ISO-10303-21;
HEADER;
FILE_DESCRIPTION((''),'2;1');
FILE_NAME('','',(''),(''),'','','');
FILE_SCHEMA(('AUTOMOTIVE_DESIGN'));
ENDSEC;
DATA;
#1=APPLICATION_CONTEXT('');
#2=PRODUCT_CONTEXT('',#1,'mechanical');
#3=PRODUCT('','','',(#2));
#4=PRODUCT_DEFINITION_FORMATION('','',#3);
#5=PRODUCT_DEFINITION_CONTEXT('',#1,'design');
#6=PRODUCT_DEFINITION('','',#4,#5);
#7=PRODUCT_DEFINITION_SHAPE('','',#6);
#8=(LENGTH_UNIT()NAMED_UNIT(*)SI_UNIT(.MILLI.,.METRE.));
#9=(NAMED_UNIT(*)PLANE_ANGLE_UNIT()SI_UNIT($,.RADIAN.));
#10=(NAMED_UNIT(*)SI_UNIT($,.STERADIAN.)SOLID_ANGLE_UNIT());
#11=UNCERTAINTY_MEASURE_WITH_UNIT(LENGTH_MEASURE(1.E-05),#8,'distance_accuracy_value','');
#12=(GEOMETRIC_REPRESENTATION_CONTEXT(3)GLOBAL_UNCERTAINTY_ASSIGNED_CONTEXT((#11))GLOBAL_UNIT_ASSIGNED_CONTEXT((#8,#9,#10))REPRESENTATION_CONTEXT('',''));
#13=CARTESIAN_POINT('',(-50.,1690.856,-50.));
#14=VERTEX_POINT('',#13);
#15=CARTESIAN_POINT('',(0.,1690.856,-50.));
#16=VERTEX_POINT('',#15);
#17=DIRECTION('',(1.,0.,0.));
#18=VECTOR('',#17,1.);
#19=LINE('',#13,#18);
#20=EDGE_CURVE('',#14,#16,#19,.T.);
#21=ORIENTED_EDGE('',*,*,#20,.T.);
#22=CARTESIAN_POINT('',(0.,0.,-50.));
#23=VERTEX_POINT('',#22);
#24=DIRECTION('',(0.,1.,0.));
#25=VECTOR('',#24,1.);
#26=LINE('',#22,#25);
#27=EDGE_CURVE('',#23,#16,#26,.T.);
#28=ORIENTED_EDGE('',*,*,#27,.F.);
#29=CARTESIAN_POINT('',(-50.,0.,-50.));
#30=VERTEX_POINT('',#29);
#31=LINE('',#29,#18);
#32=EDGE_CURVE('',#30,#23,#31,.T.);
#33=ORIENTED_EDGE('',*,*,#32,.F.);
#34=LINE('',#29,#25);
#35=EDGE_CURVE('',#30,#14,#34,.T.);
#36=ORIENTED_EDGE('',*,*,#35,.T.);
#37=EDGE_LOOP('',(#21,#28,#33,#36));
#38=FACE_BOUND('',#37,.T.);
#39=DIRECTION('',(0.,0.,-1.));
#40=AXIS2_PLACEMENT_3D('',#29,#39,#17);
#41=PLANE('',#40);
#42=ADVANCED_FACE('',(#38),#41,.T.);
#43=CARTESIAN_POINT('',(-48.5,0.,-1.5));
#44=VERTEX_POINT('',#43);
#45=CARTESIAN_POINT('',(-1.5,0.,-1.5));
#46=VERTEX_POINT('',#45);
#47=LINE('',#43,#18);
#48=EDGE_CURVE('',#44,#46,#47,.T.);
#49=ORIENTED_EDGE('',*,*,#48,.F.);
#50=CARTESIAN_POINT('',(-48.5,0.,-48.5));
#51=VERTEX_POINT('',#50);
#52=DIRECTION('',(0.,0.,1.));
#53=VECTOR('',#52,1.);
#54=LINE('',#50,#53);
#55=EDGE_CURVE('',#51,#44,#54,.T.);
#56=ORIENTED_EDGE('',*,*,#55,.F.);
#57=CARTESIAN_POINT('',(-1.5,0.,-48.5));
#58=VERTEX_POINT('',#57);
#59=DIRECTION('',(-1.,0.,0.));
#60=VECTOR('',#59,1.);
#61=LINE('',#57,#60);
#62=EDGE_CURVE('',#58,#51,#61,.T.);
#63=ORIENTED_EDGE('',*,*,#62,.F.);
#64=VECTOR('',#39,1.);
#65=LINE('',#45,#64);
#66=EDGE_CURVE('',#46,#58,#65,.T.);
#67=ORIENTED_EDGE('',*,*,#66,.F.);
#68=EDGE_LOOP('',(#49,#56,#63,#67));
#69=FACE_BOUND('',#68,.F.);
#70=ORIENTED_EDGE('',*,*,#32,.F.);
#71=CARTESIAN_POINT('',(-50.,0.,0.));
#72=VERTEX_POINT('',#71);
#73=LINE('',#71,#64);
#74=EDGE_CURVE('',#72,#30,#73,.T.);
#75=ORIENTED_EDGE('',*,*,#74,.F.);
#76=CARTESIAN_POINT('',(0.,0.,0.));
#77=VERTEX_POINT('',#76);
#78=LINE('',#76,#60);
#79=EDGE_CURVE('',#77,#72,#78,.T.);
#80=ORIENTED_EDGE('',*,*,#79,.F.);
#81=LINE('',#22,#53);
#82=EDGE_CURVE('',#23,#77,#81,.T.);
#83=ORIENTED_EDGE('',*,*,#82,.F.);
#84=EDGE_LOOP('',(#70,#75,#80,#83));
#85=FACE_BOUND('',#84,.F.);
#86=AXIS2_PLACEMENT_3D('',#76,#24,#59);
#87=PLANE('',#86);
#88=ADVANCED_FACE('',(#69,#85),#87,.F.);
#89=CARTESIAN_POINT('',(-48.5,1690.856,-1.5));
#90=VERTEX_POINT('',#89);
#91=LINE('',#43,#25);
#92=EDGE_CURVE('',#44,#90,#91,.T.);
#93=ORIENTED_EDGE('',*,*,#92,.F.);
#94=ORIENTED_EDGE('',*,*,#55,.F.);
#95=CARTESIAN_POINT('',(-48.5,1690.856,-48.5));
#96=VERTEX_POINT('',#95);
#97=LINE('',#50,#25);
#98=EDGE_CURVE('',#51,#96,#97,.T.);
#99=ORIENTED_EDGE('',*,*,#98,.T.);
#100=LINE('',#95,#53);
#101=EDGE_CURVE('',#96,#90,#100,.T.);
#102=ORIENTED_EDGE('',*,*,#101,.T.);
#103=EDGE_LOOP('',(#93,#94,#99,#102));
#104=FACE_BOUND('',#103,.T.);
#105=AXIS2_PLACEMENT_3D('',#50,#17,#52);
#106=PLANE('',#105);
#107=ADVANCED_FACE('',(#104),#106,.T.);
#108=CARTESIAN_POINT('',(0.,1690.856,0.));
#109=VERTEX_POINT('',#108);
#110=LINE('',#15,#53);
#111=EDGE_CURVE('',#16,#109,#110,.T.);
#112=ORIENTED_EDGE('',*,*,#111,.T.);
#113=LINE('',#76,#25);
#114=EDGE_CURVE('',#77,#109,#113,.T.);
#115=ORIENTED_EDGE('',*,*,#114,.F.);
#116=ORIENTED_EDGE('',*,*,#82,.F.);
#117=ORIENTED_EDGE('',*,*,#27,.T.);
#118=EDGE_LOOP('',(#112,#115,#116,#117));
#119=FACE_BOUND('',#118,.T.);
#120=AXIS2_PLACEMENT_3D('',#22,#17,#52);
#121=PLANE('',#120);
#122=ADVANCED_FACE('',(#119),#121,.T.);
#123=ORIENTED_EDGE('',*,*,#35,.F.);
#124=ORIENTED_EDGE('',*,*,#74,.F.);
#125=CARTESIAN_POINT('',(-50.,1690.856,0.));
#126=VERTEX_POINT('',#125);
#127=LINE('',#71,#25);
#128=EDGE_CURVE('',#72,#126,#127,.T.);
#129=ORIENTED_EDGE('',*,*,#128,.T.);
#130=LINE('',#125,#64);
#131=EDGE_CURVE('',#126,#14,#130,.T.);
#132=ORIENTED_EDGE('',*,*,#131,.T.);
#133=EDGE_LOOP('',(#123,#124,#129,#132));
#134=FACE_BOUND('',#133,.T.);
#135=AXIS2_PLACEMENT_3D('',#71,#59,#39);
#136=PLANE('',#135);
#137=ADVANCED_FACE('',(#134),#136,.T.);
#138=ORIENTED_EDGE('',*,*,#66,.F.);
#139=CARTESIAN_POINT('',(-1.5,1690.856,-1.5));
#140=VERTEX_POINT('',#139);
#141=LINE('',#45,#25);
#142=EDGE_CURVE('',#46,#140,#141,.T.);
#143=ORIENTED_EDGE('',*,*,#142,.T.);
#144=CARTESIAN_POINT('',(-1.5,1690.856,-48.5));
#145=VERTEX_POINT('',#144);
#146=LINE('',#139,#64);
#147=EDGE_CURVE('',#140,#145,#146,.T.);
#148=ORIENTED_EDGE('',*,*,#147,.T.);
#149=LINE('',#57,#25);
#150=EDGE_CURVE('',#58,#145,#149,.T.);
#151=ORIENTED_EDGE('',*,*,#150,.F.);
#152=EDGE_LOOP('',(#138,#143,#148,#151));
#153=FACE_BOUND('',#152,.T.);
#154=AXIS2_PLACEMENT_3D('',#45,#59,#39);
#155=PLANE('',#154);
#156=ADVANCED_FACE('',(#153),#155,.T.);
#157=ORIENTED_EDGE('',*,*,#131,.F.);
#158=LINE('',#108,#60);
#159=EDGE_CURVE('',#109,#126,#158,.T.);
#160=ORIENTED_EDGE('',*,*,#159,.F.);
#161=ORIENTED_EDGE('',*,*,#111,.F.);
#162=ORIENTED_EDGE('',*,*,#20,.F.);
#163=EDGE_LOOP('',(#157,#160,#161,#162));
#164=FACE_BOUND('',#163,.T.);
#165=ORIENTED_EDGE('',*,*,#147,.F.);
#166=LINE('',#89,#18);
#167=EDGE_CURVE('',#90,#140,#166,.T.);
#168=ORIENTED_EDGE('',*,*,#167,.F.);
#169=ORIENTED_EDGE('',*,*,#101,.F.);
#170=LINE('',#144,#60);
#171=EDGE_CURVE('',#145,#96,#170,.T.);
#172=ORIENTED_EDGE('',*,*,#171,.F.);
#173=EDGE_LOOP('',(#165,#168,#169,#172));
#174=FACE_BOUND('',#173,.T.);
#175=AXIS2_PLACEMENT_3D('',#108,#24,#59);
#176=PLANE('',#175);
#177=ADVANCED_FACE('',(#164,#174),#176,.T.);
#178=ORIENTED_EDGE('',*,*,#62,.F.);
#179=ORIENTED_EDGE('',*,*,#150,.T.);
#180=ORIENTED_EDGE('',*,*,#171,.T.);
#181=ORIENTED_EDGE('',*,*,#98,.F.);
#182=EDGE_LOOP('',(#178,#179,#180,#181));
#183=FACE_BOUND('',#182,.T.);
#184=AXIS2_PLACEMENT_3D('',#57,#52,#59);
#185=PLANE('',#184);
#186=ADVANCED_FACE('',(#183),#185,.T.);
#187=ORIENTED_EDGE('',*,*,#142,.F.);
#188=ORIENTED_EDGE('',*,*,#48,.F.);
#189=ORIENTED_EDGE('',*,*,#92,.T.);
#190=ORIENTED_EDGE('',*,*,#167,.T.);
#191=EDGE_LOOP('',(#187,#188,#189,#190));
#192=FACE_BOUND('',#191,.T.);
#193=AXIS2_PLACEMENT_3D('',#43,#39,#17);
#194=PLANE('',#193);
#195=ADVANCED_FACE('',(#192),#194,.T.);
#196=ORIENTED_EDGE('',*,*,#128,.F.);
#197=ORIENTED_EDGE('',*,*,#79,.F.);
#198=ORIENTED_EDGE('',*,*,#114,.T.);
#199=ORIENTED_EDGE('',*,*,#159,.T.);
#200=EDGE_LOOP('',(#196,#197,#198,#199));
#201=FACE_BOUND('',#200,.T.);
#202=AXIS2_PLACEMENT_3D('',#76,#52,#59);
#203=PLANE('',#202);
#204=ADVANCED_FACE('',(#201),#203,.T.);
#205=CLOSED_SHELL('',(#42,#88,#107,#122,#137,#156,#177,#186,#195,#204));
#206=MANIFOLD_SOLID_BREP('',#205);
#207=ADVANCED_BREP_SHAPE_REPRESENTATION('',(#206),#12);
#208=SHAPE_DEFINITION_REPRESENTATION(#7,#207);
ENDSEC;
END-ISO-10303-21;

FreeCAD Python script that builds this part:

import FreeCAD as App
import Part
import Sketcher
from FreeCAD import Vector


def add_polygon(sketch, points):
    """Adds a closed chain of lines whose ends are joined by coincident constraints."""
    first, n = sketch.GeometryCount, len(points)
    for a, b in zip(points, points[1:] + points[:1]):
        sketch.addGeometry(Part.LineSegment(App.Vector(*a, 0), App.Vector(*b, 0)), False)
    for i in range(n):
        sketch.addConstraint(Sketcher.Constraint("Coincident", first + i, 2, first + (i + 1) % n, 1))

doc = App.newDocument("Part")
params = doc.addObject("Spreadsheet::Sheet", "Params")
for row, (alias, value) in enumerate([
    ("sketch1_width", "50 mm"),
    ("pad1_length", "1690.856 mm"),
], start=1):
    params.set(f"A{row}", alias)
    params.set(f"B{row}", "=" + value)
    params.setAlias(f"B{row}", alias)

body = doc.addObject("PartDesign::Body", "Body")

sketch1 = body.newObject("Sketcher::SketchObject", "Sketch")
sketch1.AttachmentSupport = (doc.getObject("XZ_Plane"), [""])
sketch1.MapMode = "FlatFace"
add_polygon(sketch1, [(-50, 0), (0, 0), (0, -50), (-50, -50)])
add_polygon(sketch1, [(-48, -48), (-2, -48), (-2, -2), (-48, -2)])
sketch1.addConstraint([
    Sketcher.Constraint("Horizontal", 0),
    Sketcher.Constraint("Vertical", 1),
    Sketcher.Constraint("Horizontal", 2),
    Sketcher.Constraint("Vertical", 3),
    Sketcher.Constraint("Horizontal", 4),
    Sketcher.Constraint("Vertical", 5),
    Sketcher.Constraint("Horizontal", 6),
    Sketcher.Constraint("Vertical", 7),
    Sketcher.Constraint("Coincident", 0, 2, -1, 1),
    Sketcher.Constraint("Equal", 2, 1),
    Sketcher.Constraint("Equal", 6, 5),
    Sketcher.Constraint("DistanceX", 0, 1, 0, 2, 50.0),
    Sketcher.Constraint("DistanceX", 4, 2, -1, 1, 1.5),
    Sketcher.Constraint("DistanceY", 5, 2, -1, 1, 1.5),
    Sketcher.Constraint("DistanceY", 1, 2, 4, 2, 1.5),
])
sketch1.setExpression("Constraints[19]", "Params.sketch1_width")
pad1 = body.newObject("PartDesign::Pad", "Pad")
pad1.Profile = sketch1
pad1.setExpression("Length", "Params.pad1_length")
pad1.Reversed = True

doc.recompute()
